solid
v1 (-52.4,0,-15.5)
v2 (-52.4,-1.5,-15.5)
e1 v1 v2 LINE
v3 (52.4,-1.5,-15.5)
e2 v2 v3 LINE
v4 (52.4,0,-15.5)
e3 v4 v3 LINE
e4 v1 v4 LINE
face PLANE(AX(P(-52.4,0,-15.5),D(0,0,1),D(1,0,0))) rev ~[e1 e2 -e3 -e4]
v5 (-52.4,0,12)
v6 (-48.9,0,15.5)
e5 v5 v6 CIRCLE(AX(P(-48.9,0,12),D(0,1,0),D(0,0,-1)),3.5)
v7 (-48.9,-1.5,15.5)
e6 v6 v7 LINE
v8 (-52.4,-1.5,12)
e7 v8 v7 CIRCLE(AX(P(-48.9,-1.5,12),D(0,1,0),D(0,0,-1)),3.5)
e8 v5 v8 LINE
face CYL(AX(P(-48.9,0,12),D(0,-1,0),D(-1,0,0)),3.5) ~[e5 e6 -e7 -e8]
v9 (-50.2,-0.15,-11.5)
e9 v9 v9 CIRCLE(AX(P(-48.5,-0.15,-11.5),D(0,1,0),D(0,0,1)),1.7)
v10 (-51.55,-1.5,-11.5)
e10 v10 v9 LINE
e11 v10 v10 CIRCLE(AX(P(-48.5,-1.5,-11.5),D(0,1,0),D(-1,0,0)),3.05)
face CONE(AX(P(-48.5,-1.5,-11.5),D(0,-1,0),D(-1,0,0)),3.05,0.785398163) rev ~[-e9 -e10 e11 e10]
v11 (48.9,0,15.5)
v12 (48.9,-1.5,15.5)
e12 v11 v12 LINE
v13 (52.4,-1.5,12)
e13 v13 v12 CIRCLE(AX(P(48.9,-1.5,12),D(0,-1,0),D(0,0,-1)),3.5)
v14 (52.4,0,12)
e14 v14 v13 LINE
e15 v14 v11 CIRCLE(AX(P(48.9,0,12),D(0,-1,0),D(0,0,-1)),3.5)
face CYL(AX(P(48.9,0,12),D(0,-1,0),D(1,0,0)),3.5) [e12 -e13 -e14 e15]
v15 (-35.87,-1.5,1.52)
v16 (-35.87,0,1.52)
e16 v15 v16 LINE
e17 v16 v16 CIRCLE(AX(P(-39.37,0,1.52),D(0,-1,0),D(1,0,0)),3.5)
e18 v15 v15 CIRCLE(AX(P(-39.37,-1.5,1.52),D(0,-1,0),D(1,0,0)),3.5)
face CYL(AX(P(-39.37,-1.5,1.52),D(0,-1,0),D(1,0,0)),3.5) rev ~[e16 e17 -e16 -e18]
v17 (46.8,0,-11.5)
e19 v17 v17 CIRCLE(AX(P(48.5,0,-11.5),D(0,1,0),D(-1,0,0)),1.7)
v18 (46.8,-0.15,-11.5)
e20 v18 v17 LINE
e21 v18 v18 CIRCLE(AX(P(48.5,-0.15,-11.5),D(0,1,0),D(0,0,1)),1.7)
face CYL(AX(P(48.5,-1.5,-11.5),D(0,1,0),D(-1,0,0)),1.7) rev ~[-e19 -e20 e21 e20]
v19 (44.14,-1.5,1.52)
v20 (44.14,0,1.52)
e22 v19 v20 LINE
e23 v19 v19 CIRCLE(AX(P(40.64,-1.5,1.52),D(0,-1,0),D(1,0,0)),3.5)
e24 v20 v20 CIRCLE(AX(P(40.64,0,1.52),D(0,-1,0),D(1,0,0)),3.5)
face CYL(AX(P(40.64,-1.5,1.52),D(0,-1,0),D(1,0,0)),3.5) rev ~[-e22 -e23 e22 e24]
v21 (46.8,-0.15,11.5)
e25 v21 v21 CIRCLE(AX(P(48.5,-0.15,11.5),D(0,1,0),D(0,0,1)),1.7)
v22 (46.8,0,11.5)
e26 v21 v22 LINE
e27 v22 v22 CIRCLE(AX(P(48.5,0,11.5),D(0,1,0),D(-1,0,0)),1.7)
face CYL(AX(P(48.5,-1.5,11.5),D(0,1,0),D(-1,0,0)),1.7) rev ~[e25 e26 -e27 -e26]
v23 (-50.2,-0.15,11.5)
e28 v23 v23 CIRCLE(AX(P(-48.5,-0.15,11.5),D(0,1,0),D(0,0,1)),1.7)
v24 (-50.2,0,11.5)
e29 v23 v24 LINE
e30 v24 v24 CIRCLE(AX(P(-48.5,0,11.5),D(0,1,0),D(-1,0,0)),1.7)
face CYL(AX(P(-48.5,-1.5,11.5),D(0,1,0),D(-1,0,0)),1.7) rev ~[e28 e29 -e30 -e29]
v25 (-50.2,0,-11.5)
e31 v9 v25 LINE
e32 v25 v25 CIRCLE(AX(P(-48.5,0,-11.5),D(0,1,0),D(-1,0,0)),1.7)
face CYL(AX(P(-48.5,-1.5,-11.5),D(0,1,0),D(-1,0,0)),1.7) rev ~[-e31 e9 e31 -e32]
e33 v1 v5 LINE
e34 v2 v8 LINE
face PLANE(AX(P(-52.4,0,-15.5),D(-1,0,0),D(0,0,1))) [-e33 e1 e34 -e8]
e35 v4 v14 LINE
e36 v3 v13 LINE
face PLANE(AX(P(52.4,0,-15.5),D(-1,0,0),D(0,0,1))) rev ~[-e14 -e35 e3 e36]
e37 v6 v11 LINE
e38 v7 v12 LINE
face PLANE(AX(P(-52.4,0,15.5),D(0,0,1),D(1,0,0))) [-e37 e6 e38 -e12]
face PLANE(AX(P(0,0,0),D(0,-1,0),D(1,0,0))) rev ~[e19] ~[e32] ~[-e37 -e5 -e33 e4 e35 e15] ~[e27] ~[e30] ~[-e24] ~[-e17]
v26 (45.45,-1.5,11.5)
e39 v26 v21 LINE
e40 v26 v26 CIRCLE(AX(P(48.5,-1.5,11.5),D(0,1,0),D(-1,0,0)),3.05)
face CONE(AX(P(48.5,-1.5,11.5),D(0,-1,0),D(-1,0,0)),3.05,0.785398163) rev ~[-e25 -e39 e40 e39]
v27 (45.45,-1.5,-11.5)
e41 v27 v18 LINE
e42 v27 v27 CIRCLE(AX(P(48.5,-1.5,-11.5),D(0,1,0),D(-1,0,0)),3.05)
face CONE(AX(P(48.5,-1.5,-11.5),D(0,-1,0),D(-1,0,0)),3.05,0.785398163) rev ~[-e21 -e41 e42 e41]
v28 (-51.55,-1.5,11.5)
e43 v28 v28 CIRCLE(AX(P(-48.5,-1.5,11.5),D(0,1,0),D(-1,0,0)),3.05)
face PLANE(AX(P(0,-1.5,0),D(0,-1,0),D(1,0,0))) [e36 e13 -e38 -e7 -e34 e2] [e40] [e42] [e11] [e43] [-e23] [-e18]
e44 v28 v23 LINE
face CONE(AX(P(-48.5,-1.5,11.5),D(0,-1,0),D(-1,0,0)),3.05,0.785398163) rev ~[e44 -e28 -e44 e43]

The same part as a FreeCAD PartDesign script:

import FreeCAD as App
import Part
import Sketcher

V = App.Vector


def edges_at(feature, points):
    """Names of the edges that pass closest to the given points."""
    edges = feature.Shape.Edges
    near = lambda p: min(range(len(edges)), key=lambda i: edges[i].distToShape(Part.Vertex(*p))[0])
    return sorted({f"Edge{near(p) + 1}" for p in points})

doc = App.newDocument("Part")
body = doc.addObject("PartDesign::Body", "Body")

# Sketch on XZ plane
sketch1 = body.newObject("Sketcher::SketchObject", "Sketch")
sketch1.AttachmentSupport = (doc.getObject("XZ_Plane"), [""])
sketch1.MapMode = "FlatFace"
sketch1.addGeometry([
    Part.LineSegment(V(-52, 16, 0), V(-52, -16, 0)),
    Part.LineSegment(V(-52, -16, 0), V(52, -16, 0)),
    Part.LineSegment(V(52, -16, 0), V(52, 16, 0)),
    Part.LineSegment(V(52, 16, 0), V(-52, 16, 0)),
], False)
sketch1.addConstraint([
    Sketcher.Constraint("Coincident", 0, 2, 1, 1),
    Sketcher.Constraint("Coincident", 1, 2, 2, 1),
    Sketcher.Constraint("Coincident", 2, 2, 3, 1),
    Sketcher.Constraint("Coincident", 3, 2, 0, 1),
    Sketcher.Constraint("Vertical", 0),
    Sketcher.Constraint("Horizontal", 1),
    Sketcher.Constraint("Vertical", 2),
    Sketcher.Constraint("Horizontal", 3),
    Sketcher.Constraint("Symmetric", 0, 2, 2, 2, -1, 1),
    Sketcher.Constraint("DistanceY", 0, 2, 0, 1, 31.0),
    Sketcher.Constraint("DistanceX", 1, 1, 1, 2, 104.8),
])
pad1 = body.newObject("PartDesign::Pad", "Pad")
pad1.Profile = sketch1
pad1.Length = 1.5

# Sketch on XZ plane
sketch2 = body.newObject("Sketcher::SketchObject", "Sketch001")
sketch2.AttachmentSupport = (doc.getObject("XZ_Plane"), [""])
sketch2.MapMode = "FlatFace"
sketch2.AttachmentOffset = App.Placement(V(0, 0, 1.5), App.Rotation())
sketch2.addGeometry([
    Part.Circle(V(-48.5, 11.5, 0), V(0, 0, 1), 1.7),
    Part.Circle(V(-48.5, -11.5, 0), V(0, 0, 1), 1.7),
    Part.Circle(V(48.5, -11.5, 0), V(0, 0, 1), 1.7),
    Part.Circle(V(48.5, 11.5, 0), V(0, 0, 1), 1.7),
], False)
sketch2.addConstraint([
    Sketcher.Constraint("Equal", 0, 1),
    Sketcher.Constraint("Equal", 1, 2),
    Sketcher.Constraint("Equal", 2, 3),
    Sketcher.Constraint("Symmetric", 0, 3, 2, 3, -1, 1),
    Sketcher.Constraint("Symmetric", 1, 3, 3, 3, -1, 1),
    Sketcher.Constraint("Symmetric", 1, 3, 2, 3, -2),
    Sketcher.Constraint("Diameter", 0, 3.4),
    Sketcher.Constraint("DistanceY", 1, 3, 0, 3, 23.0),
    Sketcher.Constraint("DistanceX", 1, 3, 2, 3, 97.0),
])
doc.recompute()
hole = body.newObject("PartDesign::Hole", "Hole")
hole.Profile = sketch2
hole.ThreadType = "None"
hole.Diameter = 3.4
hole.DepthType = "Dimension"
hole.Depth = 25
hole.DrillPoint = "Flat"
hole.HoleCutType = "Countersink"
hole.HoleCutDiameter = 6.1
hole.HoleCutCountersinkAngle = 90
doc.recompute()

fillet = body.newObject("PartDesign::Fillet", "Fillet")
fillet.Base = (hole, edges_at(hole, [(-52.4, -0.75, 15.5), (52.4, -0.75, 15.5)]))
fillet.Radius = 3.5

# Sketch on XZ plane
sketch3 = body.newObject("Sketcher::SketchObject", "Sketch002")
sketch3.AttachmentSupport = (doc.getObject("XZ_Plane"), [""])
sketch3.MapMode = "FlatFace"
sketch3.AttachmentOffset = App.Placement(V(0, 0, 1.5), App.Rotation())
sketch3.addGeometry(Part.Circle(V(-39.4, 1.5, 0), V(0, 0, 1), 3.5), False)
sketch3.addConstraint([
    Sketcher.Constraint("Diameter", 0, 7.0),
    Sketcher.Constraint("DistanceX", 0, 3, -1, 1, 39.37),
    Sketcher.Constraint("DistanceY", -1, 1, 0, 3, 1.52),
])
pocket1 = body.newObject("PartDesign::Pocket", "Pocket")
pocket1.Profile = sketch3
pocket1.Type = "ThroughAll"
doc.recompute()

linearpattern = body.newObject("PartDesign::LinearPattern", "LinearPattern")
linearpattern.Originals = [pocket1]
linearpattern.Direction = (doc.getObject("X_Axis"), [""])
linearpattern.Mode = "offset"
linearpattern.Offset = 80.01
linearpattern.Occurrences = 2
body.Tip = linearpattern

doc.recompute()
